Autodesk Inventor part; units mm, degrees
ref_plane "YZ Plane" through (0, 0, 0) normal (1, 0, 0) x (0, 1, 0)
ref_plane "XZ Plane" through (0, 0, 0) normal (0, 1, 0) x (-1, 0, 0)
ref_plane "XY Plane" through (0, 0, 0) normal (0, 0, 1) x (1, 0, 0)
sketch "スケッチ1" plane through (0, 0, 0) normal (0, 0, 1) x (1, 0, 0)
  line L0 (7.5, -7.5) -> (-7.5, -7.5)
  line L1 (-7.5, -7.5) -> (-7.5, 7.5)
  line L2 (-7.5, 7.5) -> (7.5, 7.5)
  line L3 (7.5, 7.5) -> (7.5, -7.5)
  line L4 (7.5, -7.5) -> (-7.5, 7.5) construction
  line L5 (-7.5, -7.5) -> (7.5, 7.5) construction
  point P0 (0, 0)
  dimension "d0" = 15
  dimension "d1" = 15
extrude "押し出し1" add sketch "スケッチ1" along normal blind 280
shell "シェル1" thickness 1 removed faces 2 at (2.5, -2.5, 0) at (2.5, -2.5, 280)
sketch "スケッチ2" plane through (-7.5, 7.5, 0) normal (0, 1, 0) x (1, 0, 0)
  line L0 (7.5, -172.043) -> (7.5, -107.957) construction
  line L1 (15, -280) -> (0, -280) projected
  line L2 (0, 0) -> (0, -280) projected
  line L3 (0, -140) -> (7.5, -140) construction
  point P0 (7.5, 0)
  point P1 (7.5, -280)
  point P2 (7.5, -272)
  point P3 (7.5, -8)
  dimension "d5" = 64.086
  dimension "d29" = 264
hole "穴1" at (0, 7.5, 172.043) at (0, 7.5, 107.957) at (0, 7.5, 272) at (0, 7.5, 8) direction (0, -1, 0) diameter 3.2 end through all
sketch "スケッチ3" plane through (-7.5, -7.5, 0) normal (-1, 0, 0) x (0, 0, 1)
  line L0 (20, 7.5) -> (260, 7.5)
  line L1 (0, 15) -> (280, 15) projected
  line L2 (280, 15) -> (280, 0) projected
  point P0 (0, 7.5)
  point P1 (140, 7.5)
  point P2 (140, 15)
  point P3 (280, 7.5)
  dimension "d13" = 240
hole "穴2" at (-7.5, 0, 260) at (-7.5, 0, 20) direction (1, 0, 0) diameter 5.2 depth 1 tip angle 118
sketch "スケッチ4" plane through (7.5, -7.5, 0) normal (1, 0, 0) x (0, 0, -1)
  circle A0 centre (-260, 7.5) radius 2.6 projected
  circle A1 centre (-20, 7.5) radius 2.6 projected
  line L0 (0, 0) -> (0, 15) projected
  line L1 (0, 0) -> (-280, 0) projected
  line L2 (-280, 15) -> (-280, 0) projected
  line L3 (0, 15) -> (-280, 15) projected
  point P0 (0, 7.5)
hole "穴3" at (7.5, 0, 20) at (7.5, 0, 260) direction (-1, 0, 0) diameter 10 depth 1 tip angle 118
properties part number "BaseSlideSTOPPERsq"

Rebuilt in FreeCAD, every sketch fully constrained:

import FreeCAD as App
import Part
import Sketcher


def faces_at(feature, points):
    """Names of the faces that lie closest to the given points."""
    faces = feature.Shape.Faces
    near = lambda p: min(range(len(faces)), key=lambda i: faces[i].distToShape(Part.Vertex(*p))[0])
    return sorted({f"Face{near(p) + 1}" for p in points})

doc = App.newDocument("Part")
body = doc.addObject("PartDesign::Body", "Body")

sketch1 = body.newObject("Sketcher::SketchObject", "Sketch")
sketch1.AttachmentSupport = (doc.getObject("XY_Plane"), [""])
sketch1.MapMode = "FlatFace"
sketch1.addGeometry([
    Part.LineSegment(App.Vector(-8, -8, 0), App.Vector(8, -8, 0)),
    Part.LineSegment(App.Vector(8, -8, 0), App.Vector(8, 8, 0)),
    Part.LineSegment(App.Vector(8, 8, 0), App.Vector(-8, 8, 0)),
    Part.LineSegment(App.Vector(-8, 8, 0), App.Vector(-8, -8, 0)),
], False)
sketch1.addConstraint([
    Sketcher.Constraint("Coincident", 0, 2, 1, 1),
    Sketcher.Constraint("Coincident", 1, 2, 2, 1),
    Sketcher.Constraint("Coincident", 2, 2, 3, 1),
    Sketcher.Constraint("Coincident", 3, 2, 0, 1),
    Sketcher.Constraint("Horizontal", 0),
    Sketcher.Constraint("Vertical", 1),
    Sketcher.Constraint("Horizontal", 2),
    Sketcher.Constraint("Vertical", 3),
    Sketcher.Constraint("Symmetric", 0, 2, 2, 2, -1, 1),
    Sketcher.Constraint("Equal", 2, 1),
    Sketcher.Constraint("DistanceX", 0, 1, 0, 2, 15.0),
])
pad1 = body.newObject("PartDesign::Pad", "Pad")
pad1.Profile = sketch1
pad1.Length = 280
doc.recompute()

thickness = body.newObject("PartDesign::Thickness", "Thickness")
thickness.Base = (pad1, faces_at(pad1, [(2.5, -2.5, 0), (2.5, -2.5, 280)]))
thickness.Value = 1
thickness.Reversed = True
thickness.Join = "Intersection"

sketch2 = body.newObject("Sketcher::SketchObject", "Sketch001")
sketch2.AttachmentSupport = (doc.getObject("XZ_Plane"), [""])
sketch2.MapMode = "FlatFace"
sketch2.AttachmentOffset = App.Placement(App.Vector(0, 0, -7.5), App.Rotation())
sketch2.addGeometry([
    Part.Circle(App.Vector(0, 172, 0), App.Vector(0, 0, 1), 1.6),
    Part.Circle(App.Vector(0, 108, 0), App.Vector(0, 0, 1), 1.6),
    Part.Circle(App.Vector(0, 272, 0), App.Vector(0, 0, 1), 1.6),
    Part.Circle(App.Vector(0, 8, 0), App.Vector(0, 0, 1), 1.6),
], False)
sketch2.addConstraint([
    Sketcher.Constraint("Equal", 0, 1),
    Sketcher.Constraint("Equal", 1, 2),
    Sketcher.Constraint("Equal", 2, 3),
    Sketcher.Constraint("PointOnObject", 0, 3, -2),
    Sketcher.Constraint("PointOnObject", 1, 3, -2),
    Sketcher.Constraint("PointOnObject", 2, 3, -2),
    Sketcher.Constraint("PointOnObject", 3, 3, -2),
    Sketcher.Constraint("Diameter", 0, 3.2),
    Sketcher.Constraint("DistanceY", -1, 1, 2, 3, 272.0),
    Sketcher.Constraint("DistanceY", -1, 1, 3, 3, 8.0),
    Sketcher.Constraint("DistanceY", -1, 1, 0, 3, 172.043),
    Sketcher.Constraint("DistanceY", -1, 1, 1, 3, 107.957),
])
doc.recompute()
hole = body.newObject("PartDesign::Hole", "Hole")
hole.Profile = sketch2
hole.ThreadType = "None"
hole.Diameter = 3.2
hole.DepthType = "ThroughAll"
hole.Reversed = True

sketch3 = body.newObject("Sketcher::SketchObject", "Sketch002")
sketch3.AttachmentSupport = (doc.getObject("YZ_Plane"), [""])
sketch3.MapMode = "FlatFace"
sketch3.AttachmentOffset = App.Placement(App.Vector(0, 0, -7.5), App.Rotation())
sketch3.addGeometry([
    Part.Circle(App.Vector(0, 260, 0), App.Vector(0, 0, 1), 2.6),
    Part.Circle(App.Vector(0, 20, 0), App.Vector(0, 0, 1), 2.6),
], False)
sketch3.addConstraint([
    Sketcher.Constraint("Equal", 0, 1),
    Sketcher.Constraint("PointOnObject", 0, 3, -2),
    Sketcher.Constraint("PointOnObject", 1, 3, -2),
    Sketcher.Constraint("Diameter", 0, 5.2),
    Sketcher.Constraint("DistanceY", -1, 1, 0, 3, 260.0),
    Sketcher.Constraint("DistanceY", -1, 1, 1, 3, 20.0),
])
doc.recompute()
hole2 = body.newObject("PartDesign::Hole", "Hole001")
hole2.Profile = sketch3
hole2.ThreadType = "None"
hole2.Diameter = 5.2
hole2.DepthType = "Dimension"
hole2.Depth = 1
hole2.DrillPoint = "Angled"
hole2.DrillPointAngle = 118
hole2.Reversed = True

sketch4 = body.newObject("Sketcher::SketchObject", "Sketch003")
sketch4.AttachmentSupport = (doc.getObject("YZ_Plane"), [""])
sketch4.MapMode = "FlatFace"
sketch4.AttachmentOffset = App.Placement(App.Vector(0, 0, 7.5), App.Rotation())
sketch4.addGeometry([
    Part.Circle(App.Vector(0, 20, 0), App.Vector(0, 0, 1), 5),
    Part.Circle(App.Vector(0, 260, 0), App.Vector(0, 0, 1), 5),
], False)
sketch4.addConstraint([
    Sketcher.Constraint("Equal", 0, 1),
    Sketcher.Constraint("PointOnObject", 0, 3, -2),
    Sketcher.Constraint("PointOnObject", 1, 3, -2),
    Sketcher.Constraint("Diameter", 0, 10.0),
    Sketcher.Constraint("DistanceY", -1, 1, 0, 3, 20.0),
    Sketcher.Constraint("DistanceY", -1, 1, 1, 3, 260.0),
])
doc.recompute()
hole3 = body.newObject("PartDesign::Hole", "Hole002")
hole3.Profile = sketch4
hole3.ThreadType = "None"
hole3.Diameter = 10
hole3.DepthType = "Dimension"
hole3.Depth = 1
hole3.DrillPoint = "Angled"
hole3.DrillPointAngle = 118

doc.recompute()
